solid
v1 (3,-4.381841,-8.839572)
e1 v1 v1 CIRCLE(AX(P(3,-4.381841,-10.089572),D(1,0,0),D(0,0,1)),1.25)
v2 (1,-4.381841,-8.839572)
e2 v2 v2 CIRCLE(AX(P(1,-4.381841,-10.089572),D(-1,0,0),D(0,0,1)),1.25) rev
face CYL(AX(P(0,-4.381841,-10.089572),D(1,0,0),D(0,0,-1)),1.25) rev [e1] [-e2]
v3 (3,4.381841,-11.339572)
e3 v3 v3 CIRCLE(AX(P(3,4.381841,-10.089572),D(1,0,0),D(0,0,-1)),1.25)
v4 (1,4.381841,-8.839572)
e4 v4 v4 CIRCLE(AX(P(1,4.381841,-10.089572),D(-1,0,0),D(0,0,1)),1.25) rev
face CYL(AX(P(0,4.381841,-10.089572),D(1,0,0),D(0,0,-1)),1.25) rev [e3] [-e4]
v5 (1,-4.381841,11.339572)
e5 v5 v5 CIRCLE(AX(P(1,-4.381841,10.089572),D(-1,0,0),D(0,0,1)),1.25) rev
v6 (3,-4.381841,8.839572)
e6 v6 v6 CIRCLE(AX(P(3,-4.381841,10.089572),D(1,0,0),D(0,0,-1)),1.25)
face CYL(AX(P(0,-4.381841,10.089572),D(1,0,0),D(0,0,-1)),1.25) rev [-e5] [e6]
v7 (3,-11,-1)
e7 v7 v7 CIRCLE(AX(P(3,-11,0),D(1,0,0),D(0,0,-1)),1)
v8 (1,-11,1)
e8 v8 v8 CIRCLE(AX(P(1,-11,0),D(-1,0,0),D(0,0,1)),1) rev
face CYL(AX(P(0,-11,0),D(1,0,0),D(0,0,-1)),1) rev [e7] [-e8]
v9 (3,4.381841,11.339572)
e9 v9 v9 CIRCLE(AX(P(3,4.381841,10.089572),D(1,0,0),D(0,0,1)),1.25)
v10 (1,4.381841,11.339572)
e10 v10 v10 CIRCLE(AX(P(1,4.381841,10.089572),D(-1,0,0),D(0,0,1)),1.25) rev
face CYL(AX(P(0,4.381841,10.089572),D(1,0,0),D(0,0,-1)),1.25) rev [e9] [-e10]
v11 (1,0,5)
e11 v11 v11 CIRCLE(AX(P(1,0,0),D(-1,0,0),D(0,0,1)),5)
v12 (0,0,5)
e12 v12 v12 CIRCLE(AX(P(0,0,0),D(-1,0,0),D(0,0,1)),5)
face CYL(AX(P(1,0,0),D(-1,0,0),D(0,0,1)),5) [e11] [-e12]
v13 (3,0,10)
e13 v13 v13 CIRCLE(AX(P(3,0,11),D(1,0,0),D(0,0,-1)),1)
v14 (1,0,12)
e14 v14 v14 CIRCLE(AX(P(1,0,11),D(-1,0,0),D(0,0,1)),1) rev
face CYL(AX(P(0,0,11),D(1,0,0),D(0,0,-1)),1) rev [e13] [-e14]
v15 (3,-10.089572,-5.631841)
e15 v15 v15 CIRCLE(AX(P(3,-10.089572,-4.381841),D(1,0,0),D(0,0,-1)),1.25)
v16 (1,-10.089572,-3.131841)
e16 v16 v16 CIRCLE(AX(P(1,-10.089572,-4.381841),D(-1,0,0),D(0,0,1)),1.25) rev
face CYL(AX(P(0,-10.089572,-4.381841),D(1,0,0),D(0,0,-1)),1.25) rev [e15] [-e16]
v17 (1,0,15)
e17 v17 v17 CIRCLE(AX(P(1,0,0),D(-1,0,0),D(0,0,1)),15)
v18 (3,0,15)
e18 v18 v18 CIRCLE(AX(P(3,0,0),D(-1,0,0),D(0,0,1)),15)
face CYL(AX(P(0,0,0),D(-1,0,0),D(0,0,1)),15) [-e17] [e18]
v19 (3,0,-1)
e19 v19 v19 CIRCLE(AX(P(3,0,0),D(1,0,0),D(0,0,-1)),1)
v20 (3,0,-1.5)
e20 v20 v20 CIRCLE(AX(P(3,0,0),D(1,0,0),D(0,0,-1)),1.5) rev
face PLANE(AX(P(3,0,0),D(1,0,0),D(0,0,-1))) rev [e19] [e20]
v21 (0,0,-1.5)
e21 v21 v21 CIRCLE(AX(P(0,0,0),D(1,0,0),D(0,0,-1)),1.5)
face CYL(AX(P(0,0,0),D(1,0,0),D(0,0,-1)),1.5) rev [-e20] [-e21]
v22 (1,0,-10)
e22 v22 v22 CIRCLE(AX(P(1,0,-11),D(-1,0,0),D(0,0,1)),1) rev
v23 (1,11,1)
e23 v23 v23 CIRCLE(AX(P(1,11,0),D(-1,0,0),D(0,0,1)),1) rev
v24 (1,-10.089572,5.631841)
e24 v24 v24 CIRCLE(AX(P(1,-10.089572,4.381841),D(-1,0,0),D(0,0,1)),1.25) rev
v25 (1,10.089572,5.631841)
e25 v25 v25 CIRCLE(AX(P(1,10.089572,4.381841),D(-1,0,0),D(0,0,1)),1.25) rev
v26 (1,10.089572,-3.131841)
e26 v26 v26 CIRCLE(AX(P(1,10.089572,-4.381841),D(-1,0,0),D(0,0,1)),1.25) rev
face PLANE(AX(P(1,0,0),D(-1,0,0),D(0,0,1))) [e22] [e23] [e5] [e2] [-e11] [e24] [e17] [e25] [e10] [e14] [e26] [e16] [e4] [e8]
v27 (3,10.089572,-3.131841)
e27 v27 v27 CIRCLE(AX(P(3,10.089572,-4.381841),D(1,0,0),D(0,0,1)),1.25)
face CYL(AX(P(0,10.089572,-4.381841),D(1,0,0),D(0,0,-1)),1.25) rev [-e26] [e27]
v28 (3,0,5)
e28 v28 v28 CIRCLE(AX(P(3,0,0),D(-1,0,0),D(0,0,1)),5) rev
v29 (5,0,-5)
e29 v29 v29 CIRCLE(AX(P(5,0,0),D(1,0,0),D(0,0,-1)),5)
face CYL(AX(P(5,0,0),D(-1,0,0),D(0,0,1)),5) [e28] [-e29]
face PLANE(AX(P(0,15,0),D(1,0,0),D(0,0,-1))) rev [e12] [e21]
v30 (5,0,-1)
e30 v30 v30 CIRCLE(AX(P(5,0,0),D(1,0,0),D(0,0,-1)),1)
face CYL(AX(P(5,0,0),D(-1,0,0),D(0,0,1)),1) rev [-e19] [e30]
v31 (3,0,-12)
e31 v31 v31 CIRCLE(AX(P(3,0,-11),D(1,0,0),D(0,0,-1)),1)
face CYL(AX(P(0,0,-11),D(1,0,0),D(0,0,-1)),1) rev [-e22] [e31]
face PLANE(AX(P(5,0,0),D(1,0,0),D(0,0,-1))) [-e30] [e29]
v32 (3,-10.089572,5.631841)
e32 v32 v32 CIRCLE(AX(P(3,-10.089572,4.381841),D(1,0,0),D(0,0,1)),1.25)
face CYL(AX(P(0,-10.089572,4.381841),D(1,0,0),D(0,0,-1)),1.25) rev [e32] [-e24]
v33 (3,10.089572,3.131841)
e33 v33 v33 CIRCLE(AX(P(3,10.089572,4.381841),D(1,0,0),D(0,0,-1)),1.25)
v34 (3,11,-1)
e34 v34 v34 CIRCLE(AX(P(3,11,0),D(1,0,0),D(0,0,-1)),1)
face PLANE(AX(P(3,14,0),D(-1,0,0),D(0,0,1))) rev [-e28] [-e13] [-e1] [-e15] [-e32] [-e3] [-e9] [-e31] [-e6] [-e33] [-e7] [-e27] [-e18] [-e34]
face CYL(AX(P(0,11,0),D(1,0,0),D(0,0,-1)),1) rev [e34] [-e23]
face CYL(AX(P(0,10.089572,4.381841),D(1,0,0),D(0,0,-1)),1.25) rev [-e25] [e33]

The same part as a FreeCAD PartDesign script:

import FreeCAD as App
import Part
import Sketcher
from FreeCAD import Vector

doc = App.newDocument("Part")
body = doc.addObject("PartDesign::Body", "Body")

# Sketch on XY plane
sketch1 = doc.addObject("Sketcher::SketchObject", "Sketch")
body.addObject(sketch1)
sketch1.AttachmentSupport = (doc.XY_Plane, [""])
sketch1.MapMode = "FlatFace"
sketch1.addGeometry([
    Part.LineSegment(Vector(0, 15, 0), Vector(0, 0, 0)),
    Part.LineSegment(Vector(0, 0, 0), Vector(3, 0, 0)),
    Part.LineSegment(Vector(3, 0, 0), Vector(3, 15, 0)),
    Part.LineSegment(Vector(3, 15, 0), Vector(0, 15, 0)),
], False)
sketch1.addConstraint([
    Sketcher.Constraint("Coincident", 0, 2, 1, 1),
    Sketcher.Constraint("Coincident", 1, 2, 2, 1),
    Sketcher.Constraint("Coincident", 2, 2, 3, 1),
    Sketcher.Constraint("Coincident", 3, 2, 0, 1),
    Sketcher.Constraint("Vertical", 0),
    Sketcher.Constraint("Horizontal", 1),
    Sketcher.Constraint("Vertical", 2),
    Sketcher.Constraint("Horizontal", 3),
    Sketcher.Constraint("Coincident", 0, 2, -1, 1),
    Sketcher.Constraint("DistanceX", 1, 1, 1, 2, 3.0),
    Sketcher.Constraint("DistanceY", 0, 2, 0, 1, 15.0),
])
revolution = doc.addObject("PartDesign::Revolution", "Revolution")
body.addObject(revolution)
revolution.Profile = sketch1
revolution.ReferenceAxis = (sketch1, ["H_Axis"])
revolution.Angle = 360

# Sketch on YZ plane
sketch2 = doc.addObject("Sketcher::SketchObject", "Sketch001")
body.addObject(sketch2)
sketch2.AttachmentSupport = (doc.YZ_Plane, [""])
sketch2.MapMode = "FlatFace"
sketch2.AttachmentOffset = App.Placement(Vector(0, 0, 3), App.Rotation())
sketch2.addGeometry(Part.Circle(Vector(0, 0, 0), Vector(0, 0, 1), 1.5), False)
sketch2.addConstraint([
    Sketcher.Constraint("Coincident", 0, 3, -1, 1),
    Sketcher.Constraint("Diameter", 0, 3.0),
])
pocket1 = doc.addObject("PartDesign::Pocket", "Pocket")
body.addObject(pocket1)
pocket1.Profile = sketch2
pocket1.Type = "ThroughAll"

# Sketch on YZ plane
sketch3 = doc.addObject("Sketcher::SketchObject", "Sketch002")
body.addObject(sketch3)
sketch3.AttachmentSupport = (doc.YZ_Plane, [""])
sketch3.MapMode = "FlatFace"
sketch3.AttachmentOffset = App.Placement(Vector(0, 0, 3), App.Rotation())
sketch3.addGeometry([
    Part.Circle(Vector(11, 0, 0), Vector(0, 0, 1), 1),  # 0
    Part.Circle(Vector(10.1, 4.4, 0), Vector(0, 0, 1), 1.2),  # 1
    Part.Circle(Vector(10.1, -4.4, 0), Vector(0, 0, 1), 1.2),  # 2
    Part.Circle(Vector(-4.4, -10.1, 0), Vector(0, 0, 1), 1.2),  # 3
    Part.Circle(Vector(0, -11, 0), Vector(0, 0, 1), 1),  # 4
    Part.Circle(Vector(4.4, -10.1, 0), Vector(0, 0, 1), 1.2),  # 5
    Part.Circle(Vector(-10.1, 4.4, 0), Vector(0, 0, 1), 1.2),  # 6
    Part.Circle(Vector(-11, 0, 0), Vector(0, 0, 1), 1),  # 7
    Part.Circle(Vector(-10.1, -4.4, 0), Vector(0, 0, 1), 1.2),  # 8
    Part.Circle(Vector(4.4, 10.1, 0), Vector(0, 0, 1), 1.2),  # 9
    Part.Circle(Vector(0, 11, 0), Vector(0, 0, 1), 1),  # 10
    Part.Circle(Vector(-4.4, 10.1, 0), Vector(0, 0, 1), 1.2),  # 11
], False)
sketch3.addConstraint([
    Sketcher.Constraint("Equal", 1, 2),
    Sketcher.Constraint("Equal", 2, 3),
    Sketcher.Constraint("Equal", 0, 4),
    Sketcher.Constraint("Equal", 3, 5),
    Sketcher.Constraint("Equal", 5, 6),
    Sketcher.Constraint("Equal", 4, 7),
    Sketcher.Constraint("Equal", 6, 8),
    Sketcher.Constraint("Equal", 8, 9),
    Sketcher.Constraint("Equal", 7, 10),
    Sketcher.Constraint("Equal", 9, 11),
    Sketcher.Constraint("Symmetric", 2, 3, 6, 3, -1, 1),
    Sketcher.Constraint("Symmetric", 0, 3, 7, 3, -1, 1),
    Sketcher.Constraint("Symmetric", 1, 3, 8, 3, -1, 1),
    Sketcher.Constraint("Symmetric", 3, 3, 9, 3, -1, 1),
    Sketcher.Constraint("Symmetric", 4, 3, 10, 3, -1, 1),
    Sketcher.Constraint("Symmetric", 5, 3, 11, 3, -1, 1),
    Sketcher.Constraint("Symmetric", 3, 3, 5, 3, -2),
    Sketcher.Constraint("Symmetric", 1, 3, 6, 3, -2),
    Sketcher.Constraint("PointOnObject", 0, 3, -1),
    Sketcher.Constraint("PointOnObject", 4, 3, -2),
    Sketcher.Constraint("Diameter", 0, 2.0),
    Sketcher.Constraint("Diameter", 1, 2.5),
    Sketcher.Constraint("DistanceX", -1, 1, 0, 3, 11.0),
    Sketcher.Constraint("DistanceY", 4, 3, -1, 1, 11.0),
    Sketcher.Constraint("DistanceY", -1, 1, 1, 3, 4.381841),
    Sketcher.Constraint("DistanceX", 3, 3, -1, 1, 4.381841),
    Sketcher.Constraint("DistanceY", 3, 3, 2, 3, 5.707731),
    Sketcher.Constraint("DistanceX", 5, 3, 2, 3, 5.707731),
])
pocket2 = doc.addObject("PartDesign::Pocket", "Pocket001")
body.addObject(pocket2)
pocket2.Profile = sketch3
pocket2.Type = "ThroughAll"

# Sketch on YZ plane
sketch4 = doc.addObject("Sketcher::SketchObject", "Sketch003")
body.addObject(sketch4)
sketch4.AttachmentSupport = (doc.YZ_Plane, [""])
sketch4.MapMode = "FlatFace"
sketch4.AttachmentOffset = App.Placement(Vector(0, 0, 3), App.Rotation())
sketch4.addGeometry([
    Part.Circle(Vector(0, 0, 0), Vector(0, 0, 1), 5),
    Part.Circle(Vector(0, 0, 0), Vector(0, 0, 1), 1),
], False)
sketch4.addConstraint([
    Sketcher.Constraint("Coincident", 0, 3, -1, 1),
    Sketcher.Constraint("Coincident", 1, 3, -1, 1),
    Sketcher.Constraint("Diameter", 0, 10.0),
    Sketcher.Constraint("Diameter", 1, 2.0),
])
pad1 = doc.addObject("PartDesign::Pad", "Pad")
body.addObject(pad1)
pad1.Profile = sketch4
pad1.Length = 2

# Sketch on YZ plane
sketch5 = doc.addObject("Sketcher::SketchObject", "Sketch004")
body.addObject(sketch5)
sketch5.AttachmentSupport = (doc.YZ_Plane, [""])
sketch5.MapMode = "FlatFace"
sketch5.addGeometry([
    Part.Circle(Vector(0, 0, 0), Vector(0, 0, 1), 15),
    Part.Circle(Vector(0, 0, 0), Vector(0, 0, 1), 5),
], False)
sketch5.addConstraint([
    Sketcher.Constraint("Coincident", 0, 3, -1, 1),
    Sketcher.Constraint("Coincident", 1, 3, -1, 1),
    Sketcher.Constraint("Diameter", 0, 30.0),
    Sketcher.Constraint("Diameter", 1, 10.0),
])
pocket3 = doc.addObject("PartDesign::Pocket", "Pocket002")
body.addObject(pocket3)
pocket3.Profile = sketch5
pocket3.Length = 1
pocket3.Reversed = True

doc.recompute()
